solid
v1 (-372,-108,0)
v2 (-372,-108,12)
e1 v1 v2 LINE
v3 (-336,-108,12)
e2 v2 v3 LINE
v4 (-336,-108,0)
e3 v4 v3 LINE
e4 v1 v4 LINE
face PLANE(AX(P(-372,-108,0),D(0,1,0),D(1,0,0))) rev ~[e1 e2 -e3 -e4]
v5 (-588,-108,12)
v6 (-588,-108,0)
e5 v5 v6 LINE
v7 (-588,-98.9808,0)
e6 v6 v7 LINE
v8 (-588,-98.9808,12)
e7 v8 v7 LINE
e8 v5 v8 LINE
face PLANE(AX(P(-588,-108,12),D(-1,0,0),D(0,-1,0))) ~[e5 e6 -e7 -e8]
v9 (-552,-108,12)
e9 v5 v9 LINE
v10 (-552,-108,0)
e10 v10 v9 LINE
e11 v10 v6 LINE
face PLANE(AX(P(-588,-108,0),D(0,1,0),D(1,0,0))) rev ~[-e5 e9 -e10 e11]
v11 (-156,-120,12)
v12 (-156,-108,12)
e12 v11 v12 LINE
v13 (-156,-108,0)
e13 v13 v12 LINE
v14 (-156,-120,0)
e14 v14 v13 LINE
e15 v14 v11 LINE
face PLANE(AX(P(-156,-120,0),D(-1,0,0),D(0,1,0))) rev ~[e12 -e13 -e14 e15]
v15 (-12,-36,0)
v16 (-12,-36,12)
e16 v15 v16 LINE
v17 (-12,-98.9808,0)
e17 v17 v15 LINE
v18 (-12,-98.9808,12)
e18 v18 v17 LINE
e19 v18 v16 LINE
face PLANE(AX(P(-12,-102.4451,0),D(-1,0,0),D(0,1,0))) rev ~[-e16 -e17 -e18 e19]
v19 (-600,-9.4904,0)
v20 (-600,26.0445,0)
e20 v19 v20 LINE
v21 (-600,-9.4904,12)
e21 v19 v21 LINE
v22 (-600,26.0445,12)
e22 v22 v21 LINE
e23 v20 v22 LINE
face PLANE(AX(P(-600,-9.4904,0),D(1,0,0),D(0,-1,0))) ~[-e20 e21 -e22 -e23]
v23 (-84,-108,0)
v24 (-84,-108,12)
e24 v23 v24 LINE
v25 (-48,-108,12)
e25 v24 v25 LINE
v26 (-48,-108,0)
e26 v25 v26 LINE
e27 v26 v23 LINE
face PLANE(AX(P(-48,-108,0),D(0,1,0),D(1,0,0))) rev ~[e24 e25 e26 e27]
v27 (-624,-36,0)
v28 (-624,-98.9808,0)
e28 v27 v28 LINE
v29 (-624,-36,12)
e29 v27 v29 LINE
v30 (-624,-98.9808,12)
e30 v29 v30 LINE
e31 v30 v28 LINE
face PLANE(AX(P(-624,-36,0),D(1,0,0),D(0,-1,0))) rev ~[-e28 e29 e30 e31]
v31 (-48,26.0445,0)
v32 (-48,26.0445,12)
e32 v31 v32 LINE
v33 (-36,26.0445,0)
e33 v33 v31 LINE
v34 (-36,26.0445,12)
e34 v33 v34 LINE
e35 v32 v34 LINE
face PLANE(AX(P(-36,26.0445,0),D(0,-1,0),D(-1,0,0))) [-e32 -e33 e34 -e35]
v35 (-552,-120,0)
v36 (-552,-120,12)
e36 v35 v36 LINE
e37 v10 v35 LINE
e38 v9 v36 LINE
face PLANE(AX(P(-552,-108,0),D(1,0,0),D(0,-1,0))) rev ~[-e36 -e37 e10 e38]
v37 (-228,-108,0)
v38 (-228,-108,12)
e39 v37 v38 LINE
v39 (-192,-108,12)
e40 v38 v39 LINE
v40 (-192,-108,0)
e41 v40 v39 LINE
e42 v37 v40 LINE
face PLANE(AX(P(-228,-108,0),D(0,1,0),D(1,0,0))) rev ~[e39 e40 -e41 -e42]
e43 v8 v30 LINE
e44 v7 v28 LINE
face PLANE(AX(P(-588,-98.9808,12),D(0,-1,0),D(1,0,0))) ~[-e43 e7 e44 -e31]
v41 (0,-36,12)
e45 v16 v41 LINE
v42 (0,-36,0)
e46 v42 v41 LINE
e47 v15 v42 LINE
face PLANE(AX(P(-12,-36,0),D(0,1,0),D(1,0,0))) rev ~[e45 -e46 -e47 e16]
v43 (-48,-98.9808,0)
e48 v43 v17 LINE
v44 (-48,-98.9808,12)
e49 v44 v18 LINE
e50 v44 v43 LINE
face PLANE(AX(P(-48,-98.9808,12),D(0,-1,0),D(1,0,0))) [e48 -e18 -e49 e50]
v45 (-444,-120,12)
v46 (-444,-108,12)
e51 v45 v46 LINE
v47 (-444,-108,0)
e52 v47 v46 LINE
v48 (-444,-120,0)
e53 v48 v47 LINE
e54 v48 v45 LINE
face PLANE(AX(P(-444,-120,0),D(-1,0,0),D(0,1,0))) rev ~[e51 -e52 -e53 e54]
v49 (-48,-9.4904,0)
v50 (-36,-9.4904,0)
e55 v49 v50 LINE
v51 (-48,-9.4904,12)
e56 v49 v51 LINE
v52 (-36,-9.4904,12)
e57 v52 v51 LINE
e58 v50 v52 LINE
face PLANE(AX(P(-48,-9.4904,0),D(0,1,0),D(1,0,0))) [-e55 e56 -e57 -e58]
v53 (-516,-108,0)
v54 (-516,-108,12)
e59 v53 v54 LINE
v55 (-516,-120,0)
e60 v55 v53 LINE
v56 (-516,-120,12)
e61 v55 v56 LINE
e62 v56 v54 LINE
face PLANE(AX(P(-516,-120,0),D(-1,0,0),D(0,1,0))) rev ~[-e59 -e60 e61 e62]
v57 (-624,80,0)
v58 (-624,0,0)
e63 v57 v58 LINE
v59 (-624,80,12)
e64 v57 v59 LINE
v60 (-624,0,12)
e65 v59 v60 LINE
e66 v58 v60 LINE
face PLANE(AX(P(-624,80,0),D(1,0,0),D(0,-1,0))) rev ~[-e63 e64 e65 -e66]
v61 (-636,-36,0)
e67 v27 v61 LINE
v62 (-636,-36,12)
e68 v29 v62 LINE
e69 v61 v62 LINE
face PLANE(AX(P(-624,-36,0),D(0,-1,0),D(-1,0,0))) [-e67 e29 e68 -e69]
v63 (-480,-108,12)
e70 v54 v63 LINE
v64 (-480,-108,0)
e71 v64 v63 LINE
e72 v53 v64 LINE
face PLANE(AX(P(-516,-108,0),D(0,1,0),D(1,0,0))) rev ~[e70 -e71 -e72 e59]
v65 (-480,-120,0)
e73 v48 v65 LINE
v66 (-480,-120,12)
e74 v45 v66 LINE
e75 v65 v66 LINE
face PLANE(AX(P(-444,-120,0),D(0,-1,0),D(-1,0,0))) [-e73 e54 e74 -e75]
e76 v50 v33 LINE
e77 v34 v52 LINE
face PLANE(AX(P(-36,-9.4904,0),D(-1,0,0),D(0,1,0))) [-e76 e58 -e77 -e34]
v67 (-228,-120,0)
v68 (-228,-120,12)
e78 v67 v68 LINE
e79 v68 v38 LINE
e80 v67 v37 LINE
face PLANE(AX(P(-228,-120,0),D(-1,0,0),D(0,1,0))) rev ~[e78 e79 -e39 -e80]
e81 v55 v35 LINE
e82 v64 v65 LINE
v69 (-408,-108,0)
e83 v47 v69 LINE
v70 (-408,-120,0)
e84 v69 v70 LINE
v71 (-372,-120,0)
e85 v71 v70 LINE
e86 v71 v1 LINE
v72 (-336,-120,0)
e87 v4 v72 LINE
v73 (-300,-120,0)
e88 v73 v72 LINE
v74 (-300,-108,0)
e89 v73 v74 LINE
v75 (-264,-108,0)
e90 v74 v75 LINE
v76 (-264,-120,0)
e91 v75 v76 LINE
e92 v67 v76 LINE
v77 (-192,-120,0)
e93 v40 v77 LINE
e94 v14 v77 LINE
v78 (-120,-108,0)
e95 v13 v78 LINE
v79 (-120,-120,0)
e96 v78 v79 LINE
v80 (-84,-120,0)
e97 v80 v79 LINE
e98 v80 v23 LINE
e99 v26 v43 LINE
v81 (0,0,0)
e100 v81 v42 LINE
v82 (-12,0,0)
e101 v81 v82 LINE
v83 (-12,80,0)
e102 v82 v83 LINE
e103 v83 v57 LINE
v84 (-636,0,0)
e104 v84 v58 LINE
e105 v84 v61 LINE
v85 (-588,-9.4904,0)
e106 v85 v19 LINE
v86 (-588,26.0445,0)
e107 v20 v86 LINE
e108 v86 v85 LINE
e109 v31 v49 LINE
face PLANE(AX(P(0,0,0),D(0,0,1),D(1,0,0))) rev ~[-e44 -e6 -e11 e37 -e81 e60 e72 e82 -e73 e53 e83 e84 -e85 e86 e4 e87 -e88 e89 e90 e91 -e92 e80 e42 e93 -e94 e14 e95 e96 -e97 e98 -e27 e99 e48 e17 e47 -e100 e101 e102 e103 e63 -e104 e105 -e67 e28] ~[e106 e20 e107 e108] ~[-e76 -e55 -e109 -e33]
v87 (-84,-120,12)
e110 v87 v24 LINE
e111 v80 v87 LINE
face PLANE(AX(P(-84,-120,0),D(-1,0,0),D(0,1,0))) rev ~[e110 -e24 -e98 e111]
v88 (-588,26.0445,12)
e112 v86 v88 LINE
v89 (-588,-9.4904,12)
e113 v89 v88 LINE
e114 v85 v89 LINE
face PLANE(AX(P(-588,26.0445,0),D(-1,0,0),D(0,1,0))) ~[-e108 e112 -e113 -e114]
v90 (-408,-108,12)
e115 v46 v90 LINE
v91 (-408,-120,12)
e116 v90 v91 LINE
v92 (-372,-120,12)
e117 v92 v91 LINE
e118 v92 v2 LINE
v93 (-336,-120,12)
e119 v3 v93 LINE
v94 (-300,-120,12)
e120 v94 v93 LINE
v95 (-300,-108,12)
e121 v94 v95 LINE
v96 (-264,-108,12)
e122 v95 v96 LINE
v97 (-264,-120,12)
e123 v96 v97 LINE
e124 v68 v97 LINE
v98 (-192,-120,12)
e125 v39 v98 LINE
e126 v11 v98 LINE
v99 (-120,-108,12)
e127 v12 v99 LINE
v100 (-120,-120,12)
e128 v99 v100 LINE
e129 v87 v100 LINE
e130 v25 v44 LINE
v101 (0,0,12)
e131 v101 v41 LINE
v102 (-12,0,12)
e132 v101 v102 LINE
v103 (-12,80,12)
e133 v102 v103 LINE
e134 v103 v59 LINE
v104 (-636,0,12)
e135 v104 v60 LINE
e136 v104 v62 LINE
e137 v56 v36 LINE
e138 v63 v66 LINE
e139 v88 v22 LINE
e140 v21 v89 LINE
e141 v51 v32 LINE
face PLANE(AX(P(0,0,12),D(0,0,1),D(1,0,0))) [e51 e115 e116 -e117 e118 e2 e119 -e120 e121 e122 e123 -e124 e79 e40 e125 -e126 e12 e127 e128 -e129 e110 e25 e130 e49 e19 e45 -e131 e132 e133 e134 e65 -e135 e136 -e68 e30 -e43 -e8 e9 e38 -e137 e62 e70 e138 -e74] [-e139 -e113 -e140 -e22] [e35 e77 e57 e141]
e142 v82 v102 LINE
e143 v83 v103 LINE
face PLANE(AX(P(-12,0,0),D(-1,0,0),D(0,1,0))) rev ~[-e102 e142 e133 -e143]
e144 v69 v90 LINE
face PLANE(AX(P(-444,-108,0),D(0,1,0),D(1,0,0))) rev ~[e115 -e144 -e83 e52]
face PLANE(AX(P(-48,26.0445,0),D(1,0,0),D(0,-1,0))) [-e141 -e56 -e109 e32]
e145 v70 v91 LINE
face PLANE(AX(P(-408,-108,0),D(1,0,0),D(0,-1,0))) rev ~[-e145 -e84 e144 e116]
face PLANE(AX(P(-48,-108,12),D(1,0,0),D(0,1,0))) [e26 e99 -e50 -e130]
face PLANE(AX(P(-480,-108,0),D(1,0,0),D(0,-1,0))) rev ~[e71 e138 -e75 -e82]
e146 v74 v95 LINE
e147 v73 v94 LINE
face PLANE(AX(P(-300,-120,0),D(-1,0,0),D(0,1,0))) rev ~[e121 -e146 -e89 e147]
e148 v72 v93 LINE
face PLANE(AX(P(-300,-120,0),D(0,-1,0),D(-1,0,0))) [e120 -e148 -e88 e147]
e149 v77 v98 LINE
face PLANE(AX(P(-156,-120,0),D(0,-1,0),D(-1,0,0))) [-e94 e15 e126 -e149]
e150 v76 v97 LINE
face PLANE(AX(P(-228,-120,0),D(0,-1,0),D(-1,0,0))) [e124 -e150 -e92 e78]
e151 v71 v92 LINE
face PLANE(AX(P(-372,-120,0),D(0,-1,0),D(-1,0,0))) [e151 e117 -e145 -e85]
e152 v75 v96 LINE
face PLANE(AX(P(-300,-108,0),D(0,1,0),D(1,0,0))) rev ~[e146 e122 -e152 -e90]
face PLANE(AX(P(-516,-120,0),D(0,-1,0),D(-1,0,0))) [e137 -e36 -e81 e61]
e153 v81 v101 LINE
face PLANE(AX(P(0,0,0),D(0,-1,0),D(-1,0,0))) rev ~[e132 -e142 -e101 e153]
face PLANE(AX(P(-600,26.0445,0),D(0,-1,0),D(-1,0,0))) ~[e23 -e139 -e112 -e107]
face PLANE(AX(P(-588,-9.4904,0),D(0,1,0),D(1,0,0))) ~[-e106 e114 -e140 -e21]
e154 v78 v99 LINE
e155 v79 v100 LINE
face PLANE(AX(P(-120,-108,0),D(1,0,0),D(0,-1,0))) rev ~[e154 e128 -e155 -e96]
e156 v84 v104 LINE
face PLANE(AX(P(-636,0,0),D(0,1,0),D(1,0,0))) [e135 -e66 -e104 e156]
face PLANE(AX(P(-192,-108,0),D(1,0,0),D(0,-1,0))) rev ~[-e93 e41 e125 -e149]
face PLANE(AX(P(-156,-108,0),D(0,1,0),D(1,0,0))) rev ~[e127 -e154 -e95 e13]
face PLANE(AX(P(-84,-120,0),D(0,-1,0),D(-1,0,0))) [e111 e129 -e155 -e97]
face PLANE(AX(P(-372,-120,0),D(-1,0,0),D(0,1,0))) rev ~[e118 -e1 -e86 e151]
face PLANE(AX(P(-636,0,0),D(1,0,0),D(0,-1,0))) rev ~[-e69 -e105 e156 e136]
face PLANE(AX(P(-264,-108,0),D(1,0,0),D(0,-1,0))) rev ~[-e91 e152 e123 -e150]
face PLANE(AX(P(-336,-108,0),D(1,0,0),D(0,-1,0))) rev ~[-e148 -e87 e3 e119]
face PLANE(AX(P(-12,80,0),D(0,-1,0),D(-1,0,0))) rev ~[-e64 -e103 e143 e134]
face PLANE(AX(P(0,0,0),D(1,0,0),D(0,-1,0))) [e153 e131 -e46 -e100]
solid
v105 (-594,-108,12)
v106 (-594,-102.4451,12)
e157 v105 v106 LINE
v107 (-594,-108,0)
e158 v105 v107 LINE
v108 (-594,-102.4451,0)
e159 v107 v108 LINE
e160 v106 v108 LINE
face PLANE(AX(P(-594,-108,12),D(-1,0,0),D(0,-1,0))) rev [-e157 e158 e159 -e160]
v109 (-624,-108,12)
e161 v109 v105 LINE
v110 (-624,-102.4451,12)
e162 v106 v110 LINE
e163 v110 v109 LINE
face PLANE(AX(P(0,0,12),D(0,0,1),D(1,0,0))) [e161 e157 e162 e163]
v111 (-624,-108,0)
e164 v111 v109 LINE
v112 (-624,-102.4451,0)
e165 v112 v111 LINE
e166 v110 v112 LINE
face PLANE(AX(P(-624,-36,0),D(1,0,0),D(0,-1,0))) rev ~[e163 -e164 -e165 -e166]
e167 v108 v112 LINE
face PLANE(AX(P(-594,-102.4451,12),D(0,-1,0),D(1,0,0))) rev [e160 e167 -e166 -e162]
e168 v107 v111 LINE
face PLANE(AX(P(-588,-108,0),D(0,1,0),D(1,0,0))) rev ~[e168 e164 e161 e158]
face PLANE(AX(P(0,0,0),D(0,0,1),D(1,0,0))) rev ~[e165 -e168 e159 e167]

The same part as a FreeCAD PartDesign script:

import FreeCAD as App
import Part
import Sketcher

V = App.Vector
Q = App.Units.Quantity

doc = App.newDocument("Part")
body = doc.addObject("PartDesign::Body", "Body")
body.AllowCompound = True

sketch1 = body.newObject("Sketcher::SketchObject", "Sketch")
sketch1.AttachmentSupport = (doc.getObject("XY_Plane"), [""])
sketch1.MapMode = "FlatFace"
sketch1.addGeometry([
    Part.LineSegment(V(-12, -36, 0), V(0, -36, 0)),
    Part.LineSegment(V(0, -36, 0), V(0, 0, 0)),
    Part.LineSegment(V(0, 0, 0), V(-12, 0, 0)),
    Part.LineSegment(V(-12, 0, 0), V(-12, 80, 0)),
    Part.LineSegment(V(-12, 80, 0), V(-624, 80, 0)),
    Part.LineSegment(V(-624, 80, 0), V(-624, 0, 0)),
    Part.LineSegment(V(-624, 0, 0), V(-636, 0, 0)),
    Part.LineSegment(V(-636, 0, 0), V(-636, -36, 0)),
    Part.LineSegment(V(-636, -36, 0), V(-624, -36, 0)),
    Part.LineSegment(V(-624, -36, 0), V(-624, -108, 0)),
    Part.LineSegment(V(-624, -108, 0), V(-552, -108, 0)),
    Part.LineSegment(V(-552, -108, 0), V(-552, -120, 0)),
    Part.LineSegment(V(-552, -120, 0), V(-516, -120, 0)),
    Part.LineSegment(V(-516, -120, 0), V(-516, -108, 0)),
    Part.LineSegment(V(-516, -108, 0), V(-480, -108, 0)),
    Part.LineSegment(V(-480, -108, 0), V(-480, -120, 0)),
    Part.LineSegment(V(-480, -120, 0), V(-444, -120, 0)),
    Part.LineSegment(V(-444, -120, 0), V(-444, -108, 0)),
    Part.LineSegment(V(-444, -108, 0), V(-408, -108, 0)),
    Part.LineSegment(V(-408, -108, 0), V(-408, -120, 0)),
    Part.LineSegment(V(-408, -120, 0), V(-372, -120, 0)),
    Part.LineSegment(V(-372, -120, 0), V(-372, -108, 0)),
    Part.LineSegment(V(-372, -108, 0), V(-336, -108, 0)),
    Part.LineSegment(V(-336, -108, 0), V(-336, -120, 0)),
    Part.LineSegment(V(-336, -120, 0), V(-300, -120, 0)),
    Part.LineSegment(V(-300, -120, 0), V(-300, -108, 0)),
    Part.LineSegment(V(-300, -108, 0), V(-264, -108, 0)),
    Part.LineSegment(V(-264, -108, 0), V(-264, -120, 0)),
    Part.LineSegment(V(-264, -120, 0), V(-228, -120, 0)),
    Part.LineSegment(V(-228, -120, 0), V(-228, -108, 0)),
    Part.LineSegment(V(-228, -108, 0), V(-192, -108, 0)),
    Part.LineSegment(V(-192, -108, 0), V(-192, -120, 0)),
    Part.LineSegment(V(-192, -120, 0), V(-156, -120, 0)),
    Part.LineSegment(V(-156, -120, 0), V(-156, -108, 0)),
    Part.LineSegment(V(-156, -108, 0), V(-120, -108, 0)),
    Part.LineSegment(V(-120, -108, 0), V(-120, -120, 0)),
    Part.LineSegment(V(-120, -120, 0), V(-84, -120, 0)),
    Part.LineSegment(V(-84, -120, 0), V(-84, -108, 0)),
    Part.LineSegment(V(-84, -108, 0), V(-42, -108, 0)),
    Part.LineSegment(V(-42, -108, 0), V(-42, -102, 0)),
    Part.LineSegment(V(-42, -102, 0), V(-12, -102, 0)),
    Part.LineSegment(V(-12, -102, 0), V(-12, -36, 0)),
], False)
sketch1.addConstraint([
    Sketcher.Constraint("Coincident", 0, 2, 1, 1),
    Sketcher.Constraint("Coincident", 1, 2, 2, 1),
    Sketcher.Constraint("Coincident", 2, 2, 3, 1),
    Sketcher.Constraint("Coincident", 3, 2, 4, 1),
    Sketcher.Constraint("Coincident", 4, 2, 5, 1),
    Sketcher.Constraint("Coincident", 5, 2, 6, 1),
    Sketcher.Constraint("Coincident", 6, 2, 7, 1),
    Sketcher.Constraint("Coincident", 7, 2, 8, 1),
    Sketcher.Constraint("Coincident", 8, 2, 9, 1),
    Sketcher.Constraint("Coincident", 9, 2, 10, 1),
    Sketcher.Constraint("Coincident", 10, 2, 11, 1),
    Sketcher.Constraint("Coincident", 11, 2, 12, 1),
    Sketcher.Constraint("Coincident", 12, 2, 13, 1),
    Sketcher.Constraint("Coincident", 13, 2, 14, 1),
    Sketcher.Constraint("Coincident", 14, 2, 15, 1),
    Sketcher.Constraint("Coincident", 15, 2, 16, 1),
    Sketcher.Constraint("Coincident", 16, 2, 17, 1),
    Sketcher.Constraint("Coincident", 17, 2, 18, 1),
    Sketcher.Constraint("Coincident", 18, 2, 19, 1),
    Sketcher.Constraint("Coincident", 19, 2, 20, 1),
    Sketcher.Constraint("Coincident", 20, 2, 21, 1),
    Sketcher.Constraint("Coincident", 21, 2, 22, 1),
    Sketcher.Constraint("Coincident", 22, 2, 23, 1),
    Sketcher.Constraint("Coincident", 23, 2, 24, 1),
    Sketcher.Constraint("Coincident", 24, 2, 25, 1),
    Sketcher.Constraint("Coincident", 25, 2, 26, 1),
    Sketcher.Constraint("Coincident", 26, 2, 27, 1),
    Sketcher.Constraint("Coincident", 27, 2, 28, 1),
    Sketcher.Constraint("Coincident", 28, 2, 29, 1),
    Sketcher.Constraint("Coincident", 29, 2, 30, 1),
    Sketcher.Constraint("Coincident", 30, 2, 31, 1),
    Sketcher.Constraint("Coincident", 31, 2, 32, 1),
    Sketcher.Constraint("Coincident", 32, 2, 33, 1),
    Sketcher.Constraint("Coincident", 33, 2, 34, 1),
    Sketcher.Constraint("Coincident", 34, 2, 35, 1),
    Sketcher.Constraint("Coincident", 35, 2, 36, 1),
    Sketcher.Constraint("Coincident", 36, 2, 37, 1),
    Sketcher.Constraint("Coincident", 37, 2, 38, 1),
    Sketcher.Constraint("Coincident", 38, 2, 39, 1),
    Sketcher.Constraint("Coincident", 39, 2, 40, 1),
    Sketcher.Constraint("Coincident", 40, 2, 41, 1),
    Sketcher.Constraint("Coincident", 41, 2, 0, 1),
    Sketcher.Constraint("Horizontal", 0),
    Sketcher.Constraint("Vertical", 1),
    Sketcher.Constraint("Horizontal", 2),
    Sketcher.Constraint("Vertical", 3),
    Sketcher.Constraint("Horizontal", 4),
    Sketcher.Constraint("Vertical", 5),
    Sketcher.Constraint("Horizontal", 6),
    Sketcher.Constraint("Vertical", 7),
    Sketcher.Constraint("Horizontal", 8),
    Sketcher.Constraint("Vertical", 9),
    Sketcher.Constraint("Horizontal", 10),
    Sketcher.Constraint("Vertical", 11),
    Sketcher.Constraint("Horizontal", 12),
    Sketcher.Constraint("Vertical", 13),
    Sketcher.Constraint("Horizontal", 14),
    Sketcher.Constraint("Vertical", 15),
    Sketcher.Constraint("Horizontal", 16),
    Sketcher.Constraint("Vertical", 17),
    Sketcher.Constraint("Horizontal", 18),
    Sketcher.Constraint("Vertical", 19),
    Sketcher.Constraint("Horizontal", 20),
    Sketcher.Constraint("Vertical", 21),
    Sketcher.Constraint("Horizontal", 22),
    Sketcher.Constraint("Vertical", 23),
    Sketcher.Constraint("Horizontal", 24),
    Sketcher.Constraint("Vertical", 25),
    Sketcher.Constraint("Horizontal", 26),
    Sketcher.Constraint("Vertical", 27),
    Sketcher.Constraint("Horizontal", 28),
    Sketcher.Constraint("Vertical", 29),
    Sketcher.Constraint("Horizontal", 30),
    Sketcher.Constraint("Vertical", 31),
    Sketcher.Constraint("Horizontal", 32),
    Sketcher.Constraint("Vertical", 33),
    Sketcher.Constraint("Horizontal", 34),
    Sketcher.Constraint("Vertical", 35),
    Sketcher.Constraint("Horizontal", 36),
    Sketcher.Constraint("Vertical", 37),
    Sketcher.Constraint("Horizontal", 38),
    Sketcher.Constraint("Vertical", 39),
    Sketcher.Constraint("Horizontal", 40),
    Sketcher.Constraint("Vertical", 41),
    Sketcher.Constraint("Coincident", 1, 2, -1, 1),
    Sketcher.Constraint("PointOnObject", 5, 2, -1),
    Sketcher.Constraint("Horizontal", 0, 2, 7, 2),
    Sketcher.Constraint("Horizontal", 10, 2, 13, 2),
    Sketcher.Constraint("Horizontal", 12, 2, 15, 2),
    Sketcher.Constraint("Horizontal", 14, 2, 17, 2),
    Sketcher.Constraint("Horizontal", 16, 2, 19, 2),
    Sketcher.Constraint("Horizontal", 18, 2, 21, 2),
    Sketcher.Constraint("Horizontal", 20, 2, 23, 2),
    Sketcher.Constraint("Horizontal", 22, 2, 25, 2),
    Sketcher.Constraint("Horizontal", 24, 2, 27, 2),
    Sketcher.Constraint("Horizontal", 26, 2, 29, 2),
    Sketcher.Constraint("Horizontal", 28, 2, 31, 2),
    Sketcher.Constraint("Horizontal", 30, 2, 33, 2),
    Sketcher.Constraint("Horizontal", 32, 2, 35, 2),
    Sketcher.Constraint("Horizontal", 34, 2, 37, 2),
    Sketcher.Constraint("Vertical", 5, 2, 8, 2),
    Sketcher.Constraint("Vertical", 3, 2, 40, 2),
    Sketcher.Constraint("Equal", 2, 6),
    Sketcher.Constraint("Equal", 12, 14),
    Sketcher.Constraint("Equal", 14, 16),
    Sketcher.Constraint("Equal", 16, 18),
    Sketcher.Constraint("Equal", 18, 20),
    Sketcher.Constraint("Equal", 20, 22),
    Sketcher.Constraint("Equal", 22, 24),
    Sketcher.Constraint("Equal", 24, 26),
    Sketcher.Constraint("Equal", 26, 28),
    Sketcher.Constraint("Equal", 28, 30),
    Sketcher.Constraint("Equal", 30, 32),
    Sketcher.Constraint("Equal", 32, 34),
    Sketcher.Constraint("Equal", 34, 36),
    Sketcher.Constraint("Equal", 36, 1),
    Sketcher.Constraint("Equal", 10, 9),
    Sketcher.Constraint("Equal", 8, 11),
    Sketcher.Constraint("DistanceX", 0, 1, 0, 2, Q("12 mm")),
    Sketcher.Constraint("DistanceX", 4, 2, 4, 1, Q("612 mm")),
    Sketcher.Constraint("DistanceX", 10, 1, 10, 2, Q("72 mm")),
    Sketcher.Constraint("DistanceX", 12, 1, 12, 2, Q("36 mm")),
    Sketcher.Constraint("DistanceX", 38, 1, 38, 2, Q("42 mm")),
    Sketcher.Constraint("DistanceY", 3, 1, 3, 2, Q("80 mm")),
    Sketcher.Constraint("DistanceY", 39, 1, 39, 2, Q("5.555 mm")),
])
pad1 = body.newObject("PartDesign::Pad", "Pad")
pad1.Profile = sketch1
pad1.Length = 12

sketch2 = body.newObject("Sketcher::SketchObject", "Sketch001")
sketch2.AttachmentSupport = (doc.getObject("XY_Plane"), [""])
sketch2.MapMode = "FlatFace"
sketch2.AttachmentOffset = App.Placement(V(0, 0, 12), App.Rotation())
sketch2.addGeometry([
    Part.LineSegment(V(-12, -99, 0), V(-48, -99, 0)),
    Part.LineSegment(V(-48, -99, 0), V(-48, -108, 0)),
    Part.LineSegment(V(-48, -108, 0), V(-42, -108, 0)),
    Part.LineSegment(V(-42, -108, 0), V(-42, -102.4, 0)),
    Part.LineSegment(V(-42, -102.4, 0), V(-12, -102.4, 0)),
    Part.LineSegment(V(-12, -102.4, 0), V(-12, -99, 0)),
], False)
sketch2.addConstraint([
    Sketcher.Constraint("Coincident", 0, 2, 1, 1),
    Sketcher.Constraint("Coincident", 1, 2, 2, 1),
    Sketcher.Constraint("Coincident", 2, 2, 3, 1),
    Sketcher.Constraint("Coincident", 3, 2, 4, 1),
    Sketcher.Constraint("Coincident", 4, 2, 5, 1),
    Sketcher.Constraint("Coincident", 5, 2, 0, 1),
    Sketcher.Constraint("Horizontal", 0),
    Sketcher.Constraint("Vertical", 1),
    Sketcher.Constraint("Horizontal", 2),
    Sketcher.Constraint("Vertical", 3),
    Sketcher.Constraint("Horizontal", 4),
    Sketcher.Constraint("Vertical", 5),
    Sketcher.Constraint("DistanceX", 0, 2, 0, 1, Q("36 mm")),
    Sketcher.Constraint("DistanceX", 2, 1, 2, 2, Q("6 mm")),
    Sketcher.Constraint("DistanceX", 0, 2, -1, 1, Q("48 mm")),
    Sketcher.Constraint("DistanceY", 1, 2, -1, 1, Q("108 mm")),
    Sketcher.Constraint("DistanceY", 3, 1, 3, 2, Q("5.555 mm")),
    Sketcher.Constraint("DistanceY", 1, 2, 1, 1, Q("9.0192 mm")),
])
pocket1 = body.newObject("PartDesign::Pocket", "Pocket")
pocket1.Profile = sketch2
pocket1.Length = 12
doc.recompute()

datumplane = body.newObject("PartDesign::Plane", "DatumPlane")
datumplane.AttachmentSupport = (doc.getObject("YZ_Plane"), [""])
datumplane.MapMode = "FlatFace"
datumplane.AttachmentOffset = App.Placement(V(0, 0, -318), App.Rotation())
mirrored = body.newObject("PartDesign::Mirrored", "Mirrored")
mirrored.Originals = [pocket1]
mirrored.MirrorPlane = (datumplane, [""])
body.Tip = mirrored

sketch3 = body.newObject("Sketcher::SketchObject", "Sketch002")
sketch3.AttachmentSupport = (doc.getObject("XY_Plane"), [""])
sketch3.MapMode = "FlatFace"
sketch3.addGeometry([
    Part.LineSegment(V(-36, -9, 0), V(-48, -9, 0)),
    Part.LineSegment(V(-48, -9, 0), V(-48, 26, 0)),
    Part.LineSegment(V(-48, 26, 0), V(-36, 26, 0)),
    Part.LineSegment(V(-36, 26, 0), V(-36, -9, 0)),
], False)
sketch3.addConstraint([
    Sketcher.Constraint("Coincident", 0, 2, 1, 1),
    Sketcher.Constraint("Coincident", 1, 2, 2, 1),
    Sketcher.Constraint("Coincident", 2, 2, 3, 1),
    Sketcher.Constraint("Coincident", 3, 2, 0, 1),
    Sketcher.Constraint("Horizontal", 0),
    Sketcher.Constraint("Vertical", 1),
    Sketcher.Constraint("Horizontal", 2),
    Sketcher.Constraint("Vertical", 3),
    Sketcher.Constraint("DistanceX", 0, 2, 0, 1, Q("12 mm")),
    Sketcher.Constraint("DistanceX", 0, 2, -1, 1, Q("48 mm")),
    Sketcher.Constraint("DistanceY", 1, 1, 1, 2, Q("35.535 mm")),
    Sketcher.Constraint("DistanceY", 0, 2, -1, 1, Q("9.4904 mm")),
])
pocket2 = body.newObject("PartDesign::Pocket", "Pocket001")
pocket2.Profile = sketch3
pocket2.Type = "ThroughAll"
pocket2.Reversed = True
doc.recompute()

datumplane2 = body.newObject("PartDesign::Plane", "DatumPlane001")
datumplane2.AttachmentSupport = (doc.getObject("YZ_Plane"), [""])
datumplane2.MapMode = "FlatFace"
datumplane2.AttachmentOffset = App.Placement(V(0, 0, -318), App.Rotation())
mirrored2 = body.newObject("PartDesign::Mirrored", "Mirrored001")
mirrored2.Originals = [pocket2]
mirrored2.MirrorPlane = (datumplane2, [""])
body.Tip = mirrored2

doc.recompute()
